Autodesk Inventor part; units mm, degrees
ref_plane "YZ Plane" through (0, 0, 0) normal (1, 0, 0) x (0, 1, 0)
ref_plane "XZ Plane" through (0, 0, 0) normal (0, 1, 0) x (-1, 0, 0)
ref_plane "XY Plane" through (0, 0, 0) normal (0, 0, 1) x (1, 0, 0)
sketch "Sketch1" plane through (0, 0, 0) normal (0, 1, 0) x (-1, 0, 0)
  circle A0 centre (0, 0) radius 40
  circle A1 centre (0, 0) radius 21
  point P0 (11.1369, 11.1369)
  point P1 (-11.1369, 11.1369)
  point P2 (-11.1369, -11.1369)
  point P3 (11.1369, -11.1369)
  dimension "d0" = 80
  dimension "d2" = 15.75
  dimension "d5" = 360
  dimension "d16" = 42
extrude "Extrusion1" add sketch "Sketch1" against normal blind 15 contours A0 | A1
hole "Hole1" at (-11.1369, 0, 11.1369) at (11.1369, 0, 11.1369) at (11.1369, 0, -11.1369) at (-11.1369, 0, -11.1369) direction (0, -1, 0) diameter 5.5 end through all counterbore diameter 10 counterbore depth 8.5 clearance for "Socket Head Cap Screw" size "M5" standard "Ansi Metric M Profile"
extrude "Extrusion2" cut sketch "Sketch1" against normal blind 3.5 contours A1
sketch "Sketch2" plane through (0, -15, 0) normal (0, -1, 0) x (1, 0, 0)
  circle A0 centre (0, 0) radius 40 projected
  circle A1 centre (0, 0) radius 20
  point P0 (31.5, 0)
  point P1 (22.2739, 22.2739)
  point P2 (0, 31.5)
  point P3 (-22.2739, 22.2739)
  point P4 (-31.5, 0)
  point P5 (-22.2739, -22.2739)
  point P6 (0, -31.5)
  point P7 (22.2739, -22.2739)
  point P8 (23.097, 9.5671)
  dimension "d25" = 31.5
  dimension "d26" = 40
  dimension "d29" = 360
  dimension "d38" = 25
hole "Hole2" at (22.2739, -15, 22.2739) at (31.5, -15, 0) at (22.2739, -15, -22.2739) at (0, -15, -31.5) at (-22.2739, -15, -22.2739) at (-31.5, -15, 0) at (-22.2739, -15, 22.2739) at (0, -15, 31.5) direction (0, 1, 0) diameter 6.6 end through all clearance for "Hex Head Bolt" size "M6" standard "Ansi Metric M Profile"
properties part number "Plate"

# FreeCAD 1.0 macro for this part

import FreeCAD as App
import Part
import Sketcher

doc = App.newDocument("Part")
body = doc.addObject("PartDesign::Body", "Body")

# Sketch on XZ plane
sketch1 = body.newObject("Sketcher::SketchObject", "Sketch")
sketch1.AttachmentSupport = (doc.getObject("XZ_Plane"), [""])
sketch1.MapMode = "FlatFace"
sketch1.addGeometry(Part.Circle(App.Vector(0, 0, 0), App.Vector(0, 0, 1), 40), False)
sketch1.addConstraint([
    Sketcher.Constraint("Coincident", 0, 3, -1, 1),
    Sketcher.Constraint("Diameter", 0, 80.0),
])
pad1 = body.newObject("PartDesign::Pad", "Pad")
pad1.Profile = sketch1
pad1.Length = 15

# Sketch on XZ plane
sketch2 = body.newObject("Sketcher::SketchObject", "Sketch001")
sketch2.AttachmentSupport = (doc.getObject("XZ_Plane"), [""])
sketch2.MapMode = "FlatFace"
sketch2.addGeometry([
    Part.Circle(App.Vector(-11.1, 11.1, 0), App.Vector(0, 0, 1), 2.8),
    Part.Circle(App.Vector(11.1, 11.1, 0), App.Vector(0, 0, 1), 2.8),
    Part.Circle(App.Vector(11.1, -11.1, 0), App.Vector(0, 0, 1), 2.8),
    Part.Circle(App.Vector(-11.1, -11.1, 0), App.Vector(0, 0, 1), 2.8),
], False)
sketch2.addConstraint([
    Sketcher.Constraint("Equal", 0, 1),
    Sketcher.Constraint("Equal", 1, 2),
    Sketcher.Constraint("Equal", 2, 3),
    Sketcher.Constraint("Symmetric", 0, 3, 2, 3, -1, 1),
    Sketcher.Constraint("Symmetric", 1, 3, 3, 3, -1, 1),
    Sketcher.Constraint("Symmetric", 0, 3, 1, 3, -2),
    Sketcher.Constraint("Diameter", 0, 5.5),
    Sketcher.Constraint("DistanceX", 0, 3, -1, 1, 11.137),
    Sketcher.Constraint("DistanceY", -1, 1, 0, 3, 11.137),
])
doc.recompute()
hole = body.newObject("PartDesign::Hole", "Hole")
hole.Profile = sketch2
hole.ThreadType = "None"
hole.Diameter = 5.5
hole.DepthType = "ThroughAll"
hole.HoleCutType = "Counterbore"
hole.HoleCutDiameter = 10
hole.HoleCutDepth = 8.5
hole.Reversed = True

# Sketch on XZ plane
sketch3 = body.newObject("Sketcher::SketchObject", "Sketch002")
sketch3.AttachmentSupport = (doc.getObject("XZ_Plane"), [""])
sketch3.MapMode = "FlatFace"
sketch3.addGeometry(Part.Circle(App.Vector(0, 0, 0), App.Vector(0, 0, 1), 21), False)
sketch3.addConstraint([
    Sketcher.Constraint("Coincident", 0, 3, -1, 1),
    Sketcher.Constraint("Diameter", 0, 42.0),
])
pocket1 = body.newObject("PartDesign::Pocket", "Pocket")
pocket1.Profile = sketch3
pocket1.Length = 3.5
pocket1.Reversed = True

# Sketch on XZ plane
sketch4 = body.newObject("Sketcher::SketchObject", "Sketch003")
sketch4.AttachmentSupport = (doc.getObject("XZ_Plane"), [""])
sketch4.MapMode = "FlatFace"
sketch4.AttachmentOffset = App.Placement(App.Vector(0, 0, 15), App.Rotation())
sketch4.addGeometry([
    Part.Circle(App.Vector(22.3, 22.3, 0), App.Vector(0, 0, 1), 3.3),  # 0
    Part.Circle(App.Vector(31.5, 0, 0), App.Vector(0, 0, 1), 3.3),  # 1
    Part.Circle(App.Vector(22.3, -22.3, 0), App.Vector(0, 0, 1), 3.3),  # 2
    Part.Circle(App.Vector(0, -31.5, 0), App.Vector(0, 0, 1), 3.3),  # 3
    Part.Circle(App.Vector(-22.3, -22.3, 0), App.Vector(0, 0, 1), 3.3),  # 4
    Part.Circle(App.Vector(-31.5, 0, 0), App.Vector(0, 0, 1), 3.3),  # 5
    Part.Circle(App.Vector(-22.3, 22.3, 0), App.Vector(0, 0, 1), 3.3),  # 6
    Part.Circle(App.Vector(0, 31.5, 0), App.Vector(0, 0, 1), 3.3),  # 7
], False)
sketch4.addConstraint([
    Sketcher.Constraint("Equal", 0, 1),
    Sketcher.Constraint("Equal", 1, 2),
    Sketcher.Constraint("Equal", 2, 3),
    Sketcher.Constraint("Equal", 3, 4),
    Sketcher.Constraint("Equal", 4, 5),
    Sketcher.Constraint("Equal", 5, 6),
    Sketcher.Constraint("Equal", 6, 7),
    Sketcher.Constraint("Symmetric", 0, 3, 4, 3, -1, 1),
    Sketcher.Constraint("Symmetric", 1, 3, 5, 3, -1, 1),
    Sketcher.Constraint("Symmetric", 2, 3, 6, 3, -1, 1),
    Sketcher.Constraint("Symmetric", 3, 3, 7, 3, -1, 1),
    Sketcher.Constraint("Symmetric", 2, 3, 4, 3, -2),
    Sketcher.Constraint("PointOnObject", 1, 3, -1),
    Sketcher.Constraint("PointOnObject", 3, 3, -2),
    Sketcher.Constraint("Diameter", 0, 6.6),
    Sketcher.Constraint("DistanceX", 5, 3, 1, 3, 63.0),
    Sketcher.Constraint("DistanceY", 3, 3, -1, 1, 31.5),
    Sketcher.Constraint("DistanceX", -1, 1, 0, 3, 22.274),
    Sketcher.Constraint("DistanceY", -1, 1, 0, 3, 22.274),
])
doc.recompute()
hole2 = body.newObject("PartDesign::Hole", "Hole001")
hole2.Profile = sketch4
hole2.ThreadType = "None"
hole2.Diameter = 6.6
hole2.DepthType = "ThroughAll"

doc.recompute()
